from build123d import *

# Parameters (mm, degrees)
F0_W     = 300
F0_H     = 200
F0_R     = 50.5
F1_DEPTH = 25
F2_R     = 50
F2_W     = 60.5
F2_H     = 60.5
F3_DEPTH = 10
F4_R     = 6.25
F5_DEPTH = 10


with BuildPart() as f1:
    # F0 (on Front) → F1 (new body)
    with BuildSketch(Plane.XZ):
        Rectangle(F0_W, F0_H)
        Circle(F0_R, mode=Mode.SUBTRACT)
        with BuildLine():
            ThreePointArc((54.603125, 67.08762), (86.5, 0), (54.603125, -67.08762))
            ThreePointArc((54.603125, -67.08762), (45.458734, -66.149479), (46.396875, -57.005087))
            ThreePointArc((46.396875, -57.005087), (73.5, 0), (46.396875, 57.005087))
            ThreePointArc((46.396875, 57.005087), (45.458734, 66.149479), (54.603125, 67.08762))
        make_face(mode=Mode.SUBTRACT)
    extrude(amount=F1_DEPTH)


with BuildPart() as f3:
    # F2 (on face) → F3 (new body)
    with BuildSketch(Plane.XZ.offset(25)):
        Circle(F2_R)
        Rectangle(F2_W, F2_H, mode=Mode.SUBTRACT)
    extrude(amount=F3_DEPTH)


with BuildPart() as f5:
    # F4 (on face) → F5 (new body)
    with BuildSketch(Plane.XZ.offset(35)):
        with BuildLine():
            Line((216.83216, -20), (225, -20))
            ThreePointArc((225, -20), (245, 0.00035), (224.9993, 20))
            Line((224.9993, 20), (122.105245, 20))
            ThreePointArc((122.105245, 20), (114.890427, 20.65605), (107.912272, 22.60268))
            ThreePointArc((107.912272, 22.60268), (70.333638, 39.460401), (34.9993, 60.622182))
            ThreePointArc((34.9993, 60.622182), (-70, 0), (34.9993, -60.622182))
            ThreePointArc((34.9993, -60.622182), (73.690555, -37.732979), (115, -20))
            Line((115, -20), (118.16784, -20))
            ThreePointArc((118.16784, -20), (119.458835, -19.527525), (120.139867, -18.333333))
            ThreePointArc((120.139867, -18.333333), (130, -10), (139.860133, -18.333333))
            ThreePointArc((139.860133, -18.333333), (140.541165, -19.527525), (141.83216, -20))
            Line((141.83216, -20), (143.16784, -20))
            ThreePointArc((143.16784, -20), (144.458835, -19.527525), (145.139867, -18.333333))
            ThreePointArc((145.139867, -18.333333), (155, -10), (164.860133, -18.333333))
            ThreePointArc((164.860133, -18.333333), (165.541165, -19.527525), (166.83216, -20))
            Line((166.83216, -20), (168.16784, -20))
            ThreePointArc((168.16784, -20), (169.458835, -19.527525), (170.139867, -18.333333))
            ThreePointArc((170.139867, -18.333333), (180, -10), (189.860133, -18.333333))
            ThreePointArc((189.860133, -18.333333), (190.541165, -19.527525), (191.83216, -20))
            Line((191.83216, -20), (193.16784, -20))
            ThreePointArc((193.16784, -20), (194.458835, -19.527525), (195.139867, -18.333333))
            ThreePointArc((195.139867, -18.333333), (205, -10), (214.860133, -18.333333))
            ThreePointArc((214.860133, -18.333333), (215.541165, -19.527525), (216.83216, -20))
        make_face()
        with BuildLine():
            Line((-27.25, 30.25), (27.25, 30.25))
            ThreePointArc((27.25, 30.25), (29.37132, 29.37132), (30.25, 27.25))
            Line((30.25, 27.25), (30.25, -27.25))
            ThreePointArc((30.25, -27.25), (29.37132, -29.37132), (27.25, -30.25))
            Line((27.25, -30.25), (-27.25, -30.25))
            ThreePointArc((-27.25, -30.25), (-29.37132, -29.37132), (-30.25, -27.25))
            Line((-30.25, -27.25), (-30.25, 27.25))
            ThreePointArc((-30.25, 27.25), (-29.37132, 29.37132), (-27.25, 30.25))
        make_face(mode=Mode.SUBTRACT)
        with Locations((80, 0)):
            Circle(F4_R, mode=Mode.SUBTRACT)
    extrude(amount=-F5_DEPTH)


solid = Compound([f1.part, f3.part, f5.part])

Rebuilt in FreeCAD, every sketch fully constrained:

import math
import FreeCAD as App
import Part
import Sketcher
from FreeCAD import Vector


def add_polygon(sketch, points):
    """Adds a closed chain of lines whose ends are joined by coincident constraints."""
    first, n = sketch.GeometryCount, len(points)
    for a, b in zip(points, points[1:] + points[:1]):
        sketch.addGeometry(Part.LineSegment(App.Vector(*a, 0), App.Vector(*b, 0)), False)
    for i in range(n):
        sketch.addConstraint(Sketcher.Constraint("Coincident", first + i, 2, first + (i + 1) % n, 1))

doc = App.newDocument("Part")
body = doc.addObject("PartDesign::Body", "Body")

sketch1 = body.newObject("Sketcher::SketchObject", "Sketch")
sketch1.AttachmentSupport = (doc.getObject("XZ_Plane"), [""])
sketch1.MapMode = "FlatFace"
add_polygon(sketch1, [(-150, 100), (-150, -100), (150, -100), (150, 100)])
sketch1.addGeometry(Part.Circle(Vector(0, 0, 0), Vector(0, 0, 1), 50), False)
sketch1.addGeometry(Part.ArcOfCircle(Part.Circle(Vector(51, 62, 0), Vector(0, 0, 1), 7), math.radians(51), math.radians(231)), False)
sketch1.addGeometry(Part.ArcOfCircle(Part.Circle(Vector(0, 0, 0), Vector(0, 0, 1), 87), math.radians(-51), math.radians(51)), False)
sketch1.addGeometry(Part.ArcOfCircle(Part.Circle(Vector(51, -62, 0), Vector(0, 0, 1), 7), math.radians(129), math.radians(309)), False)
sketch1.addGeometry(Part.ArcOfCircle(Part.Circle(Vector(0, 0, 0), Vector(0, 0, 1), 73), math.radians(-51), math.radians(51)), False)
sketch1.addConstraint(Sketcher.Constraint("Tangent", 5, 1, 6, 2))
sketch1.addConstraint(Sketcher.Constraint("Tangent", 6, 1, 7, 2))
sketch1.addConstraint(Sketcher.Constraint("Tangent", 7, 1, 8, 1))
sketch1.addConstraint(Sketcher.Constraint("Tangent", 8, 2, 5, 2))
sketch1.addConstraint(Sketcher.Constraint("Vertical", 0))
sketch1.addConstraint(Sketcher.Constraint("Horizontal", 1))
sketch1.addConstraint(Sketcher.Constraint("Vertical", 2))
sketch1.addConstraint(Sketcher.Constraint("Horizontal", 3))
sketch1.addConstraint(Sketcher.Constraint("Coincident", 4, 3, -1, 1))
sketch1.addConstraint(Sketcher.Constraint("Coincident", 6, 3, -1, 1))
sketch1.addConstraint(Sketcher.Constraint("Coincident", 8, 3, -1, 1))
sketch1.addConstraint(Sketcher.Constraint("Symmetric", 0, 2, 2, 2, -1, 1))
sketch1.addConstraint(Sketcher.Constraint("Vertical", 5, 3, 7, 3))
sketch1.addConstraint(Sketcher.Constraint("Diameter", 4, 101.0))
sketch1.addConstraint(Sketcher.Constraint("Radius", 5, 6.5))
sketch1.addConstraint(Sketcher.Constraint("Radius", 6, 86.5))
sketch1.addConstraint(Sketcher.Constraint("DistanceX", 1, 1, 1, 2, 300.0))
sketch1.addConstraint(Sketcher.Constraint("DistanceY", 0, 2, 0, 1, 200.0))
sketch1.addConstraint(Sketcher.Constraint("DistanceX", -1, 1, 5, 3, 50.5))
pad1 = body.newObject("PartDesign::Pad", "Pad")
pad1.Profile = sketch1
pad1.Length = 25
body2 = doc.addObject("PartDesign::Body", "Body001")

sketch2 = body2.newObject("Sketcher::SketchObject", "Sketch001")
sketch2.AttachmentSupport = (doc.getObject("XZ_Plane001"), [""])
sketch2.MapMode = "FlatFace"
sketch2.AttachmentOffset = App.Placement(Vector(0, 0, 25), App.Rotation())
sketch2.addGeometry(Part.Circle(Vector(0, 0, 0), Vector(0, 0, 1), 50), False)
add_polygon(sketch2, [(30, -30), (-30, -30), (-30, 30), (30, 30)])
sketch2.addConstraint(Sketcher.Constraint("Horizontal", 1))
sketch2.addConstraint(Sketcher.Constraint("Vertical", 2))
sketch2.addConstraint(Sketcher.Constraint("Horizontal", 3))
sketch2.addConstraint(Sketcher.Constraint("Vertical", 4))
sketch2.addConstraint(Sketcher.Constraint("Coincident", 0, 3, -1, 1))
sketch2.addConstraint(Sketcher.Constraint("Symmetric", 1, 2, 3, 2, -1, 1))
sketch2.addConstraint(Sketcher.Constraint("Equal", 3, 2))
sketch2.addConstraint(Sketcher.Constraint("Diameter", 0, 100.0))
sketch2.addConstraint(Sketcher.Constraint("DistanceX", 1, 2, 1, 1, 60.5))
pad2 = body2.newObject("PartDesign::Pad", "Pad001")
pad2.Profile = sketch2
pad2.Length = 10
body3 = doc.addObject("PartDesign::Body", "Body002")

sketch3 = body3.newObject("Sketcher::SketchObject", "Sketch002")
sketch3.AttachmentSupport = (doc.getObject("XZ_Plane002"), [""])
sketch3.MapMode = "FlatFace"
sketch3.AttachmentOffset = App.Placement(Vector(0, 0, 35), App.Rotation())
sketch3.addGeometry(Part.LineSegment(Vector(216.8, -20, 0), Vector(225, -20, 0)), False)
sketch3.addGeometry(Part.ArcOfCircle(Part.Circle(Vector(225, 0, 0), Vector(0, 0, 1), 20), math.radians(-90), math.radians(90)), False)
sketch3.addGeometry(Part.LineSegment(Vector(225, 20, 0), Vector(122.1, 20, 0)), False)
sketch3.addGeometry(Part.ArcOfCircle(Part.Circle(Vector(122.1, 60, 0), Vector(0, 0, 1), 40), math.radians(-111), math.radians(-90)), False)
sketch3.addGeometry(Part.ArcOfCircle(Part.Circle(Vector(231.9, 349.3, 0), Vector(0, 0, 1), 349.5), math.radians(-124.3), math.radians(-110.78)), False)
sketch3.addGeometry(Part.ArcOfCircle(Part.Circle(Vector(0, 0, 0), Vector(0, 0, 1), 70), math.radians(60), math.radians(300)), False)
sketch3.addGeometry(Part.ArcOfCircle(Part.Circle(Vector(231.9, -349.3, 0), Vector(0, 0, 1), 349.5), math.radians(109.54), math.radians(124.3)), False)
sketch3.addGeometry(Part.LineSegment(Vector(115, -20, 0), Vector(118.2, -20, 0)), False)
sketch3.addGeometry(Part.ArcOfCircle(Part.Circle(Vector(118.2, -18, 0), Vector(0, 0, 1), 2), math.radians(-90), math.radians(-10)), False)
sketch3.addGeometry(Part.ArcOfCircle(Part.Circle(Vector(130, -20, 0), Vector(0, 0, 1), 10), math.radians(10), math.radians(170)), False)
sketch3.addGeometry(Part.ArcOfCircle(Part.Circle(Vector(141.8, -18, 0), Vector(0, 0, 1), 2), math.radians(-170), math.radians(-90)), False)
sketch3.addGeometry(Part.LineSegment(Vector(141.8, -20, 0), Vector(143.2, -20, 0)), False)
sketch3.addGeometry(Part.ArcOfCircle(Part.Circle(Vector(143.2, -18, 0), Vector(0, 0, 1), 2), math.radians(-90), math.radians(-10)), False)
sketch3.addGeometry(Part.ArcOfCircle(Part.Circle(Vector(155, -20, 0), Vector(0, 0, 1), 10), math.radians(10), math.radians(170)), False)
sketch3.addGeometry(Part.ArcOfCircle(Part.Circle(Vector(166.8, -18, 0), Vector(0, 0, 1), 2), math.radians(-170), math.radians(-90)), False)
sketch3.addGeometry(Part.LineSegment(Vector(166.8, -20, 0), Vector(168.2, -20, 0)), False)
sketch3.addGeometry(Part.ArcOfCircle(Part.Circle(Vector(168.2, -18, 0), Vector(0, 0, 1), 2), math.radians(-90), math.radians(-10)), False)
sketch3.addGeometry(Part.ArcOfCircle(Part.Circle(Vector(180, -20, 0), Vector(0, 0, 1), 10), math.radians(10), math.radians(170)), False)
sketch3.addGeometry(Part.ArcOfCircle(Part.Circle(Vector(191.8, -18, 0), Vector(0, 0, 1), 2), math.radians(-170), math.radians(-90)), False)
sketch3.addGeometry(Part.LineSegment(Vector(191.8, -20, 0), Vector(193.2, -20, 0)), False)
sketch3.addGeometry(Part.ArcOfCircle(Part.Circle(Vector(193.2, -18, 0), Vector(0, 0, 1), 2), math.radians(-90), math.radians(-10)), False)
sketch3.addGeometry(Part.ArcOfCircle(Part.Circle(Vector(205, -20, 0), Vector(0, 0, 1), 10), math.radians(10), math.radians(170)), False)
sketch3.addGeometry(Part.ArcOfCircle(Part.Circle(Vector(216.8, -18, 0), Vector(0, 0, 1), 2), math.radians(-170), math.radians(-90)), False)
sketch3.addGeometry(Part.ArcOfCircle(Part.Circle(Vector(-27.2, 27.2, 0), Vector(0, 0, 1), 3), math.radians(90), math.radians(180)), False)
sketch3.addGeometry(Part.LineSegment(Vector(-27.2, 30.2, 0), Vector(27.2, 30.2, 0)), False)
sketch3.addGeometry(Part.ArcOfCircle(Part.Circle(Vector(27.2, 27.2, 0), Vector(0, 0, 1), 3), math.radians(0), math.radians(90)), False)
sketch3.addGeometry(Part.LineSegment(Vector(30.2, 27.2, 0), Vector(30.2, -27.2, 0)), False)
sketch3.addGeometry(Part.ArcOfCircle(Part.Circle(Vector(27.2, -27.2, 0), Vector(0, 0, 1), 3), math.radians(-90), math.radians(0)), False)
sketch3.addGeometry(Part.LineSegment(Vector(27.2, -30.2, 0), Vector(-27.2, -30.2, 0)), False)
sketch3.addGeometry(Part.ArcOfCircle(Part.Circle(Vector(-27.2, -27.2, 0), Vector(0, 0, 1), 3), math.radians(-180), math.radians(-90)), False)
sketch3.addGeometry(Part.LineSegment(Vector(-30.2, -27.2, 0), Vector(-30.2, 27.2, 0)), False)
sketch3.addGeometry(Part.Circle(Vector(80, 0, 0), Vector(0, 0, 1), 6.2), False)
sketch3.addConstraint(Sketcher.Constraint("Tangent", 0, 2, 1, 1))
sketch3.addConstraint(Sketcher.Constraint("Coincident", 1, 2, 2, 1))
sketch3.addConstraint(Sketcher.Constraint("Tangent", 2, 2, 3, 2))
sketch3.addConstraint(Sketcher.Constraint("Tangent", 3, 1, 4, 2))
sketch3.addConstraint(Sketcher.Constraint("Coincident", 4, 1, 5, 1))
sketch3.addConstraint(Sketcher.Constraint("Coincident", 5, 2, 6, 2))
sketch3.addConstraint(Sketcher.Constraint("Coincident", 6, 1, 7, 1))
sketch3.addConstraint(Sketcher.Constraint("Tangent", 7, 2, 8, 1))
sketch3.addConstraint(Sketcher.Constraint("Tangent", 8, 2, 9, 2))
sketch3.addConstraint(Sketcher.Constraint("Tangent", 9, 1, 10, 1))
sketch3.addConstraint(Sketcher.Constraint("Tangent", 10, 2, 11, 1))
sketch3.addConstraint(Sketcher.Constraint("Tangent", 11, 2, 12, 1))
sketch3.addConstraint(Sketcher.Constraint("Tangent", 12, 2, 13, 2))
sketch3.addConstraint(Sketcher.Constraint("Tangent", 13, 1, 14, 1))
sketch3.addConstraint(Sketcher.Constraint("Tangent", 14, 2, 15, 1))
sketch3.addConstraint(Sketcher.Constraint("Tangent", 15, 2, 16, 1))
sketch3.addConstraint(Sketcher.Constraint("Tangent", 16, 2, 17, 2))
sketch3.addConstraint(Sketcher.Constraint("Tangent", 17, 1, 18, 1))
sketch3.addConstraint(Sketcher.Constraint("Tangent", 18, 2, 19, 1))
sketch3.addConstraint(Sketcher.Constraint("Tangent", 19, 2, 20, 1))
sketch3.addConstraint(Sketcher.Constraint("Tangent", 20, 2, 21, 2))
sketch3.addConstraint(Sketcher.Constraint("Tangent", 21, 1, 22, 1))
sketch3.addConstraint(Sketcher.Constraint("Tangent", 22, 2, 0, 1))
sketch3.addConstraint(Sketcher.Constraint("Tangent", 23, 1, 24, 1))
sketch3.addConstraint(Sketcher.Constraint("Tangent", 24, 2, 25, 2))
sketch3.addConstraint(Sketcher.Constraint("Tangent", 25, 1, 26, 1))
sketch3.addConstraint(Sketcher.Constraint("Tangent", 26, 2, 27, 2))
sketch3.addConstraint(Sketcher.Constraint("Tangent", 27, 1, 28, 1))
sketch3.addConstraint(Sketcher.Constraint("Tangent", 28, 2, 29, 2))
sketch3.addConstraint(Sketcher.Constraint("Tangent", 29, 1, 30, 1))
sketch3.addConstraint(Sketcher.Constraint("Tangent", 30, 2, 23, 2))
sketch3.addConstraint(Sketcher.Constraint("Horizontal", 0))
sketch3.addConstraint(Sketcher.Constraint("Horizontal", 2))
sketch3.addConstraint(Sketcher.Constraint("Horizontal", 7))
sketch3.addConstraint(Sketcher.Constraint("Horizontal", 11))
sketch3.addConstraint(Sketcher.Constraint("Horizontal", 15))
sketch3.addConstraint(Sketcher.Constraint("Horizontal", 19))
sketch3.addConstraint(Sketcher.Constraint("Horizontal", 24))
sketch3.addConstraint(Sketcher.Constraint("Vertical", 26))
sketch3.addConstraint(Sketcher.Constraint("Horizontal", 28))
sketch3.addConstraint(Sketcher.Constraint("Vertical", 30))
sketch3.addConstraint(Sketcher.Constraint("Coincident", 5, 3, -1, 1))
sketch3.addConstraint(Sketcher.Constraint("Equal", 8, 10))
sketch3.addConstraint(Sketcher.Constraint("Equal", 10, 12))
sketch3.addConstraint(Sketcher.Constraint("Equal", 9, 13))
sketch3.addConstraint(Sketcher.Constraint("Equal", 12, 14))
sketch3.addConstraint(Sketcher.Constraint("Equal", 14, 16))
sketch3.addConstraint(Sketcher.Constraint("Equal", 13, 17))
sketch3.addConstraint(Sketcher.Constraint("Equal", 16, 18))
sketch3.addConstraint(Sketcher.Constraint("Equal", 18, 20))
sketch3.addConstraint(Sketcher.Constraint("Equal", 17, 21))
sketch3.addConstraint(Sketcher.Constraint("Equal", 20, 22))
sketch3.addConstraint(Sketcher.Constraint("Equal", 23, 25))
sketch3.addConstraint(Sketcher.Constraint("Equal", 25, 27))
sketch3.addConstraint(Sketcher.Constraint("Equal", 27, 29))
sketch3.addConstraint(Sketcher.Constraint("Symmetric", 23, 3, 27, 3, -1, 1))
sketch3.addConstraint(Sketcher.Constraint("PointOnObject", 1, 3, -1))
sketch3.addConstraint(Sketcher.Constraint("PointOnObject", 31, 3, -1))
sketch3.addConstraint(Sketcher.Constraint("Horizontal", 8, 3, 10, 3))
sketch3.addConstraint(Sketcher.Constraint("Horizontal", 9, 3, 13, 3))
sketch3.addConstraint(Sketcher.Constraint("Horizontal", 12, 3, 14, 3))
sketch3.addConstraint(Sketcher.Constraint("Horizontal", 13, 3, 17, 3))
sketch3.addConstraint(Sketcher.Constraint("Horizontal", 16, 3, 18, 3))
sketch3.addConstraint(Sketcher.Constraint("Horizontal", 17, 3, 21, 3))
sketch3.addConstraint(Sketcher.Constraint("Horizontal", 20, 3, 22, 3))
sketch3.addConstraint(Sketcher.Constraint("Horizontal", 21, 3, 0, 2))
sketch3.addConstraint(Sketcher.Constraint("Vertical", 4, 1, 5, 2))
sketch3.addConstraint(Sketcher.Constraint("Equal", 11, 15))
sketch3.addConstraint(Sketcher.Constraint("Equal", 15, 19))
sketch3.addConstraint(Sketcher.Constraint("Equal", 28, 26))
sketch3.addConstraint(Sketcher.Constraint("Radius", 1, 20.0))
sketch3.addConstraint(Sketcher.Constraint("Radius", 5, 70.0))
sketch3.addConstraint(Sketcher.Constraint("Radius", 8, 2.0))
sketch3.addConstraint(Sketcher.Constraint("Radius", 9, 10.0))
sketch3.addConstraint(Sketcher.Constraint("Radius", 23, 3.000001))
sketch3.addConstraint(Sketcher.Constraint("Diameter", 31, 12.5))
sketch3.addConstraint(Sketcher.Constraint("DistanceX", 24, 1, 24, 2, 54.5))
sketch3.addConstraint(Sketcher.Constraint("DistanceX", -1, 1, 1, 3, 225.0))
sketch3.addConstraint(Sketcher.Constraint("DistanceX", -1, 1, 9, 3, 130.0))
sketch3.addConstraint(Sketcher.Constraint("DistanceX", -1, 1, 13, 3, 155.0))
sketch3.addConstraint(Sketcher.Constraint("DistanceX", -1, 1, 31, 3, 80.0))
sketch3.addConstraint(Sketcher.Constraint("DistanceX", -1, 1, 6, 1, 115.0))
sketch3.addConstraint(Sketcher.Constraint("Radius", 3, 40.00001))
sketch3.addConstraint(Sketcher.Constraint("Radius", 4, 349.468302))
sketch3.addConstraint(Sketcher.Constraint("Radius", 6, 349.468245))
sketch3.addConstraint(Sketcher.Constraint("DistanceX", -1, 1, 1, 2, 224.9993))
sketch3.addConstraint(Sketcher.Constraint("DistanceX", -1, 1, 4, 1, 34.9993))
sketch3.addConstraint(Sketcher.Constraint("DistanceX", 2, 2, 2, 1, 102.894055))
pad3 = body3.newObject("PartDesign::Pad", "Pad002")
pad3.Profile = sketch3
pad3.Length = 10
pad3.Reversed = True

doc.recompute()
